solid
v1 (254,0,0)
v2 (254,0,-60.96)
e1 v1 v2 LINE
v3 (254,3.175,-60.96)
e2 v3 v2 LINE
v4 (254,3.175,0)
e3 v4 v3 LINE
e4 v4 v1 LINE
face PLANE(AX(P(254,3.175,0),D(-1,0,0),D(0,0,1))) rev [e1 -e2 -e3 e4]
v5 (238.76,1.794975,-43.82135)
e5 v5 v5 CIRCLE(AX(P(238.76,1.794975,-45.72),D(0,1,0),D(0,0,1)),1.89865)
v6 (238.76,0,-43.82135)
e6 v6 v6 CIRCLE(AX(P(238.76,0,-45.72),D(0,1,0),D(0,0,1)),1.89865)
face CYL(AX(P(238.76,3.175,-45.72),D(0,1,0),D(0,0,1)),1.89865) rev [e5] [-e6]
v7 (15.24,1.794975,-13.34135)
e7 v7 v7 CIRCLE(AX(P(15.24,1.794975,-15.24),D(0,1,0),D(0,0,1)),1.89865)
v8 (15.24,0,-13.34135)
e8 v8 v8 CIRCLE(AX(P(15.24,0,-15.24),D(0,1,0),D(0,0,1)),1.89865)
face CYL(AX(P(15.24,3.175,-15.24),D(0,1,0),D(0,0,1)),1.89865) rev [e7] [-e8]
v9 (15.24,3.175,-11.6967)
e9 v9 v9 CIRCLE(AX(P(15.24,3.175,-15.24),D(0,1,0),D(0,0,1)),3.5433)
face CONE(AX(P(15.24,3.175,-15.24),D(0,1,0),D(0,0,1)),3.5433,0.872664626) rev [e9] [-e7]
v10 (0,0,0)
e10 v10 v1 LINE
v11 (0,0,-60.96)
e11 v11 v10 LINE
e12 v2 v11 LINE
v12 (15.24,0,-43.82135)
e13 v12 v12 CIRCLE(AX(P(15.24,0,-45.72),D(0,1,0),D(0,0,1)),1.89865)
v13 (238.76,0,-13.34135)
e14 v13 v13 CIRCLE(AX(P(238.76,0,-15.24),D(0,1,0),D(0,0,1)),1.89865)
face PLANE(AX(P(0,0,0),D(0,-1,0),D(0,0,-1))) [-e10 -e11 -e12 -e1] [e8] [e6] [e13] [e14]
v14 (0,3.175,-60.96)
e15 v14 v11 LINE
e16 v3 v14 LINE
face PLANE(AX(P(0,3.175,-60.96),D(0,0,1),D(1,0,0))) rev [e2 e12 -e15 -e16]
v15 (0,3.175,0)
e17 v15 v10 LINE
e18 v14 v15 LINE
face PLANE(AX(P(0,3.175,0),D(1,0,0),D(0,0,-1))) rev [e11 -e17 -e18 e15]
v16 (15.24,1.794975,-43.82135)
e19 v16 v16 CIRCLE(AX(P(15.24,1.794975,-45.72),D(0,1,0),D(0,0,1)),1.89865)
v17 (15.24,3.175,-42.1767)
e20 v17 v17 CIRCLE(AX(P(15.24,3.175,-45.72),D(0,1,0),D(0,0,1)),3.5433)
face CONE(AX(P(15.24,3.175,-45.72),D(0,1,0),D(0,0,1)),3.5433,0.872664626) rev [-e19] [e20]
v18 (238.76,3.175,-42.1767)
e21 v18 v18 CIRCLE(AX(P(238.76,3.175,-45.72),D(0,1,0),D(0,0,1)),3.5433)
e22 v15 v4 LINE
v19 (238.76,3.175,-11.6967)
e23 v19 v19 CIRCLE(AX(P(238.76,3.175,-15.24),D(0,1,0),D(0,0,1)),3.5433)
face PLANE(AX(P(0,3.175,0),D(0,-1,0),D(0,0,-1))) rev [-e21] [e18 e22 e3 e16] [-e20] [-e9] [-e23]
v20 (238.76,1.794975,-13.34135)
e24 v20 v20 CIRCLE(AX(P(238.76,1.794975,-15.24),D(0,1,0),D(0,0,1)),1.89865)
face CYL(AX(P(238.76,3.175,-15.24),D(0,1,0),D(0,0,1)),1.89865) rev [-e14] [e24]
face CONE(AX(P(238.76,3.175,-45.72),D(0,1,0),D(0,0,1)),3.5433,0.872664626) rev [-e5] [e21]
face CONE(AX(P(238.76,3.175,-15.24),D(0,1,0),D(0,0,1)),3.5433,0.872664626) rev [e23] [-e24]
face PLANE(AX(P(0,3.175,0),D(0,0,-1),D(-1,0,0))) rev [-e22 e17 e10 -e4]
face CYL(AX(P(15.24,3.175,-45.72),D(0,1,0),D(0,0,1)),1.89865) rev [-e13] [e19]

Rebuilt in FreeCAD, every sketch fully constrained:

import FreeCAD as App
import Part
import Sketcher
Q = App.Units.Quantity

doc = App.newDocument("Part")
body = doc.addObject("PartDesign::Body", "Body")

sketch1 = body.newObject("Sketcher::SketchObject", "Sketch")
sketch1.AttachmentSupport = (doc.getObject("XZ_Plane"), [""])
sketch1.MapMode = "FlatFace"
sketch1.addGeometry(Part.LineSegment(App.Vector(0, -60.96, 0), App.Vector(0, 0, 0)), False)
sketch1.addGeometry(Part.LineSegment(App.Vector(0, 0, 0), App.Vector(254, 0, 0)), False)
sketch1.addGeometry(Part.LineSegment(App.Vector(254, 0, 0), App.Vector(254, -60.96, 0)), False)
sketch1.addGeometry(Part.LineSegment(App.Vector(254, -60.96, 0), App.Vector(0, -60.96, 0)), False)
sketch1.addConstraint(Sketcher.Constraint("Coincident", 0, 2, 1, 1))
sketch1.addConstraint(Sketcher.Constraint("Coincident", 1, 2, 2, 1))
sketch1.addConstraint(Sketcher.Constraint("Coincident", 2, 2, 3, 1))
sketch1.addConstraint(Sketcher.Constraint("Coincident", 3, 2, 0, 1))
sketch1.addConstraint(Sketcher.Constraint("Vertical", 0))
sketch1.addConstraint(Sketcher.Constraint("Horizontal", 1))
sketch1.addConstraint(Sketcher.Constraint("Vertical", 2))
sketch1.addConstraint(Sketcher.Constraint("Horizontal", 3))
sketch1.addConstraint(Sketcher.Constraint("Coincident", 0, 2, -1, 1))
sketch1.addConstraint(Sketcher.Constraint("DistanceX", 1, 1, 1, 2, Q("10 in")))
sketch1.addConstraint(Sketcher.Constraint("DistanceY", 0, 1, 0, 2, Q("2.4 in")))
pad1 = body.newObject("PartDesign::Pad", "Pad")
pad1.Profile = sketch1
pad1.Length = Q("0.125 in")
pad1.Reversed = True

sketch2 = body.newObject("Sketcher::SketchObject", "Sketch001")
sketch2.AttachmentSupport = (doc.getObject("XZ_Plane"), [""])
sketch2.MapMode = "FlatFace"
sketch2.AttachmentOffset = App.Placement(App.Vector(0, 0, -0.125 * 25.4), App.Rotation())
sketch2.addGeometry(Part.Circle(App.Vector(15.24, -15.24, 0), App.Vector(0, 0, 1), 1.89865), False)
sketch2.addGeometry(Part.Circle(App.Vector(15.24, -45.72, 0), App.Vector(0, 0, 1), 1.89865), False)
sketch2.addGeometry(Part.Circle(App.Vector(238.76, -15.24, 0), App.Vector(0, 0, 1), 1.89865), False)
sketch2.addGeometry(Part.Circle(App.Vector(238.76, -45.72, 0), App.Vector(0, 0, 1), 1.89865), False)
sketch2.addConstraint(Sketcher.Constraint("Equal", 0, 1))
sketch2.addConstraint(Sketcher.Constraint("Equal", 1, 2))
sketch2.addConstraint(Sketcher.Constraint("Equal", 2, 3))
sketch2.addConstraint(Sketcher.Constraint("Horizontal", 0, 3, 2, 3))
sketch2.addConstraint(Sketcher.Constraint("Horizontal", 1, 3, 3, 3))
sketch2.addConstraint(Sketcher.Constraint("Vertical", 0, 3, 1, 3))
sketch2.addConstraint(Sketcher.Constraint("Vertical", 2, 3, 3, 3))
sketch2.addConstraint(Sketcher.Constraint("Diameter", 0, Q("0.1495 in")))
sketch2.addConstraint(Sketcher.Constraint("DistanceX", -1, 1, 0, 3, Q("0.6 in")))
sketch2.addConstraint(Sketcher.Constraint("DistanceY", 0, 3, -1, 1, Q("0.6 in")))
sketch2.addConstraint(Sketcher.Constraint("DistanceY", 1, 3, -1, 1, Q("1.8 in")))
sketch2.addConstraint(Sketcher.Constraint("DistanceX", -1, 1, 2, 3, Q("9.4 in")))
doc.recompute()
hole = body.newObject("PartDesign::Hole", "Hole")
hole.Profile = sketch2
hole.ThreadType = "None"
hole.Diameter = Q("0.1495 in")
hole.DepthType = "Dimension"
hole.Depth = Q("0.125 in")
hole.DrillPoint = "Angled"
hole.DrillPointAngle = 118
hole.HoleCutType = "Countersink"
hole.HoleCutDiameter = Q("0.279 in")
hole.HoleCutCountersinkAngle = 100
hole.Reversed = True

doc.recompute()
